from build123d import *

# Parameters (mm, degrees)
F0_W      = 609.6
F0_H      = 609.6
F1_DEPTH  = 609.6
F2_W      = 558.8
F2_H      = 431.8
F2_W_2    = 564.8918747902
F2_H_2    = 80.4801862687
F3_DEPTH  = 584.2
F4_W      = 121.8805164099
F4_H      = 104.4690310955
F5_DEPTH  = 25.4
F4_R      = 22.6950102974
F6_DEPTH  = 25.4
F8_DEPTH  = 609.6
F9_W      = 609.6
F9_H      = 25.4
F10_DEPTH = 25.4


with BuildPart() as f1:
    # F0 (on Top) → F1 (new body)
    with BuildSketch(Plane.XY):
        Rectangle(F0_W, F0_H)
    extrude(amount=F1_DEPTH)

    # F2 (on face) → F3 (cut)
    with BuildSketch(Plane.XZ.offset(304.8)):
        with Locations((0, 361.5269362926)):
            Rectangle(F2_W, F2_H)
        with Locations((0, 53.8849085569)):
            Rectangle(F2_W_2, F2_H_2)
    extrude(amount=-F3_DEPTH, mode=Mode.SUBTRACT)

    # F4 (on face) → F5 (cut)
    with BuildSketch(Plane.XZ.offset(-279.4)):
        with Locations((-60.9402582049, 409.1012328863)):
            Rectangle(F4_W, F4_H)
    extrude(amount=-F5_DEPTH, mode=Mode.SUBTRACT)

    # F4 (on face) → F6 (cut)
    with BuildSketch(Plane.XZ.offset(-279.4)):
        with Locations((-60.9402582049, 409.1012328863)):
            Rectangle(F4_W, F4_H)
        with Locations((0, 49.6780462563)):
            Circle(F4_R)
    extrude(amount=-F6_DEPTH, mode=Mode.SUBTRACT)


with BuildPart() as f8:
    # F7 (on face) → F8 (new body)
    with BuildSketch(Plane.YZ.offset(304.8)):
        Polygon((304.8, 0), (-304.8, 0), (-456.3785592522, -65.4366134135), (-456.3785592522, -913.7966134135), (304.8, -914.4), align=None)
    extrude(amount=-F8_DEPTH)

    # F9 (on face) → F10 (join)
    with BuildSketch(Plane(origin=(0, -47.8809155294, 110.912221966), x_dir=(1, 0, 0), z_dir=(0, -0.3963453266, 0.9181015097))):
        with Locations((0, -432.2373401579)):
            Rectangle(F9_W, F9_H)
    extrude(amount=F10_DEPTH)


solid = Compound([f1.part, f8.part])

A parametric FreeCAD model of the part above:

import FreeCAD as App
import Part
import Sketcher

V = App.Vector
Q = App.Units.Quantity

doc = App.newDocument("Part")
body = doc.addObject("PartDesign::Body", "Body")

# Sketch on XY plane
sketch1 = body.newObject("Sketcher::SketchObject", "Sketch")
sketch1.AttachmentSupport = (doc.getObject("XY_Plane"), [""])
sketch1.MapMode = "FlatFace"
sketch1.addGeometry([
    Part.LineSegment(V(-304.8, 304.8, 0), V(-304.8, -304.8, 0)),
    Part.LineSegment(V(-304.8, -304.8, 0), V(304.8, -304.8, 0)),
    Part.LineSegment(V(304.8, -304.8, 0), V(304.8, 304.8, 0)),
    Part.LineSegment(V(304.8, 304.8, 0), V(-304.8, 304.8, 0)),
], False)
sketch1.addConstraint([
    Sketcher.Constraint("Coincident", 0, 2, 1, 1),
    Sketcher.Constraint("Coincident", 1, 2, 2, 1),
    Sketcher.Constraint("Coincident", 2, 2, 3, 1),
    Sketcher.Constraint("Coincident", 3, 2, 0, 1),
    Sketcher.Constraint("Vertical", 0),
    Sketcher.Constraint("Horizontal", 1),
    Sketcher.Constraint("Vertical", 2),
    Sketcher.Constraint("Horizontal", 3),
    Sketcher.Constraint("Symmetric", 0, 2, 2, 2, -1, 1),
    Sketcher.Constraint("Equal", 3, 0),
    Sketcher.Constraint("DistanceX", 1, 1, 1, 2, Q("24 in")),
])
pad1 = body.newObject("PartDesign::Pad", "Pad")
pad1.Profile = sketch1
pad1.Length = Q("24 in")

# Sketch on XZ plane
sketch2 = body.newObject("Sketcher::SketchObject", "Sketch001")
sketch2.AttachmentSupport = (doc.getObject("XZ_Plane"), [""])
sketch2.MapMode = "FlatFace"
sketch2.AttachmentOffset = App.Placement(V(0, 0, 12 * 25.4), App.Rotation())
sketch2.addGeometry([
    Part.LineSegment(V(-279.4, 577.426936, 0), V(-279.4, 145.626936, 0)),  # 0
    Part.LineSegment(V(-279.4, 145.626936, 0), V(279.4, 145.626936, 0)),  # 1
    Part.LineSegment(V(279.4, 145.626936, 0), V(279.4, 577.426936, 0)),  # 2
    Part.LineSegment(V(279.4, 577.426936, 0), V(-279.4, 577.426936, 0)),  # 3
    Part.LineSegment(V(-282.445937, 94.125002, 0), V(-282.445937, 13.644815, 0)),  # 4
    Part.LineSegment(V(-282.445937, 13.644815, 0), V(282.445937, 13.644815, 0)),  # 5
    Part.LineSegment(V(282.445937, 13.644815, 0), V(282.445937, 94.125002, 0)),  # 6
    Part.LineSegment(V(282.445937, 94.125002, 0), V(-282.445937, 94.125002, 0)),  # 7
], False)
sketch2.addConstraint([
    Sketcher.Constraint("Coincident", 0, 2, 1, 1),
    Sketcher.Constraint("Coincident", 1, 2, 2, 1),
    Sketcher.Constraint("Coincident", 2, 2, 3, 1),
    Sketcher.Constraint("Coincident", 3, 2, 0, 1),
    Sketcher.Constraint("Coincident", 4, 2, 5, 1),
    Sketcher.Constraint("Coincident", 5, 2, 6, 1),
    Sketcher.Constraint("Coincident", 6, 2, 7, 1),
    Sketcher.Constraint("Coincident", 7, 2, 4, 1),
    Sketcher.Constraint("Vertical", 0),
    Sketcher.Constraint("Horizontal", 1),
    Sketcher.Constraint("Vertical", 2),
    Sketcher.Constraint("Horizontal", 3),
    Sketcher.Constraint("Vertical", 4),
    Sketcher.Constraint("Horizontal", 5),
    Sketcher.Constraint("Vertical", 6),
    Sketcher.Constraint("Horizontal", 7),
    Sketcher.Constraint("DistanceX", 1, 1, 1, 2, Q("22 in")),
    Sketcher.Constraint("DistanceY", 0, 2, 0, 1, Q("17 in")),
    Sketcher.Constraint("DistanceX", 0, 2, -1, 1, Q("11 in")),
    Sketcher.Constraint("DistanceY", -1, 1, 6, 2, 94.125002),
    Sketcher.Constraint("DistanceX", 5, 1, 5, 2, 564.891875),
    Sketcher.Constraint("DistanceY", 4, 2, 4, 1, 80.480186),
    Sketcher.Constraint("DistanceY", 4, 2, 0, 2, 131.982121),
    Sketcher.Constraint("DistanceX", 4, 2, -1, 1, 282.445937),
])
pocket1 = body.newObject("PartDesign::Pocket", "Pocket")
pocket1.Profile = sketch2
pocket1.Length = Q("23 in")

# Sketch on XZ plane
sketch3 = body.newObject("Sketcher::SketchObject", "Sketch002")
sketch3.AttachmentSupport = (doc.getObject("XZ_Plane"), [""])
sketch3.MapMode = "FlatFace"
sketch3.AttachmentOffset = App.Placement(V(0, 0, -11 * 25.4), App.Rotation())
sketch3.addGeometry([
    Part.LineSegment(V(-121.880516, 461.335748, 0), V(-121.880516, 356.866717, 0)),
    Part.LineSegment(V(-121.880516, 356.866717, 0), V(0, 356.866717, 0)),
    Part.LineSegment(V(0, 356.866717, 0), V(0, 461.335748, 0)),
    Part.LineSegment(V(0, 461.335748, 0), V(-121.880516, 461.335748, 0)),
], False)
sketch3.addConstraint([
    Sketcher.Constraint("Coincident", 0, 2, 1, 1),
    Sketcher.Constraint("Coincident", 1, 2, 2, 1),
    Sketcher.Constraint("Coincident", 2, 2, 3, 1),
    Sketcher.Constraint("Coincident", 3, 2, 0, 1),
    Sketcher.Constraint("Vertical", 0),
    Sketcher.Constraint("Horizontal", 1),
    Sketcher.Constraint("Vertical", 2),
    Sketcher.Constraint("Horizontal", 3),
    Sketcher.Constraint("PointOnObject", 1, 2, -2),
    Sketcher.Constraint("DistanceY", 0, 2, 0, 1, 104.469031),
    Sketcher.Constraint("DistanceX", 1, 1, 1, 2, 121.880516),
    Sketcher.Constraint("DistanceY", -1, 1, 2, 2, 461.335748),
])
pocket2 = body.newObject("PartDesign::Pocket", "Pocket001")
pocket2.Profile = sketch3
pocket2.Length = Q("1 in")

# Sketch on XZ plane
sketch4 = body.newObject("Sketcher::SketchObject", "Sketch003")
sketch4.AttachmentSupport = (doc.getObject("XZ_Plane"), [""])
sketch4.MapMode = "FlatFace"
sketch4.AttachmentOffset = App.Placement(V(0, 0, -11 * 25.4), App.Rotation())
sketch4.addGeometry([
    Part.LineSegment(V(-121.880516, 461.335748, 0), V(-121.880516, 356.866717, 0)),  # 0
    Part.LineSegment(V(-121.880516, 356.866717, 0), V(0, 356.866717, 0)),  # 1
    Part.LineSegment(V(0, 356.866717, 0), V(0, 461.335748, 0)),  # 2
    Part.LineSegment(V(0, 461.335748, 0), V(-121.880516, 461.335748, 0)),  # 3
    Part.Circle(V(0, 49.678046, 0), V(0, 0, 1), 22.69501),  # 4
], False)
sketch4.addConstraint([
    Sketcher.Constraint("Coincident", 0, 2, 1, 1),
    Sketcher.Constraint("Coincident", 1, 2, 2, 1),
    Sketcher.Constraint("Coincident", 2, 2, 3, 1),
    Sketcher.Constraint("Coincident", 3, 2, 0, 1),
    Sketcher.Constraint("Vertical", 0),
    Sketcher.Constraint("Horizontal", 1),
    Sketcher.Constraint("Vertical", 2),
    Sketcher.Constraint("Horizontal", 3),
    Sketcher.Constraint("PointOnObject", 4, 3, -2),
    Sketcher.Constraint("PointOnObject", 1, 2, -2),
    Sketcher.Constraint("Diameter", 4, 45.390021),
    Sketcher.Constraint("DistanceY", 0, 2, 0, 1, 104.469031),
    Sketcher.Constraint("DistanceX", 1, 1, 1, 2, 121.880516),
    Sketcher.Constraint("DistanceY", -1, 1, 2, 2, 461.335748),
    Sketcher.Constraint("DistanceY", 4, 3, 0, 2, 307.188671),
])
pocket3 = body.newObject("PartDesign::Pocket", "Pocket002")
pocket3.Profile = sketch4
pocket3.Length = Q("1 in")
body2 = doc.addObject("PartDesign::Body", "Body001")

# Sketch on YZ plane
sketch5 = body2.newObject("Sketcher::SketchObject", "Sketch004")
sketch5.AttachmentSupport = (doc.getObject("YZ_Plane001"), [""])
sketch5.MapMode = "FlatFace"
sketch5.AttachmentOffset = App.Placement(V(0, 0, 12 * 25.4), App.Rotation())
sketch5.addGeometry([
    Part.LineSegment(V(304.8, 0, 0), V(-304.8, 0, 0)),  # 0
    Part.LineSegment(V(-304.8, 0, 0), V(-456.378559, -65.436613, 0)),  # 1
    Part.LineSegment(V(-456.378559, -65.436613, 0), V(-456.378559, -913.796613, 0)),  # 2
    Part.LineSegment(V(-456.378559, -913.796613, 0), V(304.8, -914.4, 0)),  # 3
    Part.LineSegment(V(304.8, -914.4, 0), V(304.8, 0, 0)),  # 4
], False)
sketch5.addConstraint([
    Sketcher.Constraint("Coincident", 0, 2, 1, 1),
    Sketcher.Constraint("Coincident", 1, 2, 2, 1),
    Sketcher.Constraint("Coincident", 2, 2, 3, 1),
    Sketcher.Constraint("Coincident", 3, 2, 4, 1),
    Sketcher.Constraint("Coincident", 4, 2, 0, 1),
    Sketcher.Constraint("Horizontal", 0),
    Sketcher.Constraint("Vertical", 2),
    Sketcher.Constraint("Vertical", 4),
    Sketcher.Constraint("Symmetric", 0, 2, 4, 2, -1, 1),
    Sketcher.Constraint("DistanceX", 0, 2, 0, 1, Q("24 in")),
    Sketcher.Constraint("DistanceY", 4, 1, 4, 2, Q("36 in")),
    Sketcher.Constraint("DistanceY", 2, 2, 2, 1, Q("33.4 in")),
    Sketcher.Constraint("Distance", 1, Q("6.5 in")),
    Sketcher.Constraint("Distance", 3, 761.178798),
])
pad2 = body2.newObject("PartDesign::Pad", "Pad001")
pad2.Profile = sketch5
pad2.Length = Q("24 in")
pad2.Reversed = True

# Sketch on an angled plane
sketch6 = body2.newObject("Sketcher::SketchObject", "Sketch005")
sketch6.Placement = App.Placement(V(0, -47.880916, 110.912222), App.Rotation(V(1, 0, 0), V(0, 0.91810151, 0.396345327), V(0, -0.396345327, 0.91810151), "ZXY"))
sketch6.addGeometry([
    Part.LineSegment(V(-304.8, -419.537341, 0), V(-304.8, -444.937341, 0)),
    Part.LineSegment(V(-304.8, -444.937341, 0), V(304.8, -444.937341, 0)),
    Part.LineSegment(V(304.8, -444.937341, 0), V(304.8, -419.537341, 0)),
    Part.LineSegment(V(304.8, -419.537341, 0), V(-304.8, -419.537341, 0)),
], False)
sketch6.addConstraint([
    Sketcher.Constraint("Coincident", 0, 2, 1, 1),
    Sketcher.Constraint("Coincident", 1, 2, 2, 1),
    Sketcher.Constraint("Coincident", 2, 2, 3, 1),
    Sketcher.Constraint("Coincident", 3, 2, 0, 1),
    Sketcher.Constraint("Vertical", 0),
    Sketcher.Constraint("Horizontal", 1),
    Sketcher.Constraint("Vertical", 2),
    Sketcher.Constraint("Horizontal", 3),
    Sketcher.Constraint("DistanceX", 1, 1, 1, 2, Q("24 in")),
    Sketcher.Constraint("DistanceY", 0, 2, 0, 1, Q("1 in")),
    Sketcher.Constraint("DistanceX", 0, 2, -1, 1, Q("12 in")),
    Sketcher.Constraint("DistanceY", 0, 2, -1, 1, 444.937341),
])
pad3 = body2.newObject("PartDesign::Pad", "Pad002")
pad3.Profile = sketch6
pad3.Length = Q("1 in")

doc.recompute()
